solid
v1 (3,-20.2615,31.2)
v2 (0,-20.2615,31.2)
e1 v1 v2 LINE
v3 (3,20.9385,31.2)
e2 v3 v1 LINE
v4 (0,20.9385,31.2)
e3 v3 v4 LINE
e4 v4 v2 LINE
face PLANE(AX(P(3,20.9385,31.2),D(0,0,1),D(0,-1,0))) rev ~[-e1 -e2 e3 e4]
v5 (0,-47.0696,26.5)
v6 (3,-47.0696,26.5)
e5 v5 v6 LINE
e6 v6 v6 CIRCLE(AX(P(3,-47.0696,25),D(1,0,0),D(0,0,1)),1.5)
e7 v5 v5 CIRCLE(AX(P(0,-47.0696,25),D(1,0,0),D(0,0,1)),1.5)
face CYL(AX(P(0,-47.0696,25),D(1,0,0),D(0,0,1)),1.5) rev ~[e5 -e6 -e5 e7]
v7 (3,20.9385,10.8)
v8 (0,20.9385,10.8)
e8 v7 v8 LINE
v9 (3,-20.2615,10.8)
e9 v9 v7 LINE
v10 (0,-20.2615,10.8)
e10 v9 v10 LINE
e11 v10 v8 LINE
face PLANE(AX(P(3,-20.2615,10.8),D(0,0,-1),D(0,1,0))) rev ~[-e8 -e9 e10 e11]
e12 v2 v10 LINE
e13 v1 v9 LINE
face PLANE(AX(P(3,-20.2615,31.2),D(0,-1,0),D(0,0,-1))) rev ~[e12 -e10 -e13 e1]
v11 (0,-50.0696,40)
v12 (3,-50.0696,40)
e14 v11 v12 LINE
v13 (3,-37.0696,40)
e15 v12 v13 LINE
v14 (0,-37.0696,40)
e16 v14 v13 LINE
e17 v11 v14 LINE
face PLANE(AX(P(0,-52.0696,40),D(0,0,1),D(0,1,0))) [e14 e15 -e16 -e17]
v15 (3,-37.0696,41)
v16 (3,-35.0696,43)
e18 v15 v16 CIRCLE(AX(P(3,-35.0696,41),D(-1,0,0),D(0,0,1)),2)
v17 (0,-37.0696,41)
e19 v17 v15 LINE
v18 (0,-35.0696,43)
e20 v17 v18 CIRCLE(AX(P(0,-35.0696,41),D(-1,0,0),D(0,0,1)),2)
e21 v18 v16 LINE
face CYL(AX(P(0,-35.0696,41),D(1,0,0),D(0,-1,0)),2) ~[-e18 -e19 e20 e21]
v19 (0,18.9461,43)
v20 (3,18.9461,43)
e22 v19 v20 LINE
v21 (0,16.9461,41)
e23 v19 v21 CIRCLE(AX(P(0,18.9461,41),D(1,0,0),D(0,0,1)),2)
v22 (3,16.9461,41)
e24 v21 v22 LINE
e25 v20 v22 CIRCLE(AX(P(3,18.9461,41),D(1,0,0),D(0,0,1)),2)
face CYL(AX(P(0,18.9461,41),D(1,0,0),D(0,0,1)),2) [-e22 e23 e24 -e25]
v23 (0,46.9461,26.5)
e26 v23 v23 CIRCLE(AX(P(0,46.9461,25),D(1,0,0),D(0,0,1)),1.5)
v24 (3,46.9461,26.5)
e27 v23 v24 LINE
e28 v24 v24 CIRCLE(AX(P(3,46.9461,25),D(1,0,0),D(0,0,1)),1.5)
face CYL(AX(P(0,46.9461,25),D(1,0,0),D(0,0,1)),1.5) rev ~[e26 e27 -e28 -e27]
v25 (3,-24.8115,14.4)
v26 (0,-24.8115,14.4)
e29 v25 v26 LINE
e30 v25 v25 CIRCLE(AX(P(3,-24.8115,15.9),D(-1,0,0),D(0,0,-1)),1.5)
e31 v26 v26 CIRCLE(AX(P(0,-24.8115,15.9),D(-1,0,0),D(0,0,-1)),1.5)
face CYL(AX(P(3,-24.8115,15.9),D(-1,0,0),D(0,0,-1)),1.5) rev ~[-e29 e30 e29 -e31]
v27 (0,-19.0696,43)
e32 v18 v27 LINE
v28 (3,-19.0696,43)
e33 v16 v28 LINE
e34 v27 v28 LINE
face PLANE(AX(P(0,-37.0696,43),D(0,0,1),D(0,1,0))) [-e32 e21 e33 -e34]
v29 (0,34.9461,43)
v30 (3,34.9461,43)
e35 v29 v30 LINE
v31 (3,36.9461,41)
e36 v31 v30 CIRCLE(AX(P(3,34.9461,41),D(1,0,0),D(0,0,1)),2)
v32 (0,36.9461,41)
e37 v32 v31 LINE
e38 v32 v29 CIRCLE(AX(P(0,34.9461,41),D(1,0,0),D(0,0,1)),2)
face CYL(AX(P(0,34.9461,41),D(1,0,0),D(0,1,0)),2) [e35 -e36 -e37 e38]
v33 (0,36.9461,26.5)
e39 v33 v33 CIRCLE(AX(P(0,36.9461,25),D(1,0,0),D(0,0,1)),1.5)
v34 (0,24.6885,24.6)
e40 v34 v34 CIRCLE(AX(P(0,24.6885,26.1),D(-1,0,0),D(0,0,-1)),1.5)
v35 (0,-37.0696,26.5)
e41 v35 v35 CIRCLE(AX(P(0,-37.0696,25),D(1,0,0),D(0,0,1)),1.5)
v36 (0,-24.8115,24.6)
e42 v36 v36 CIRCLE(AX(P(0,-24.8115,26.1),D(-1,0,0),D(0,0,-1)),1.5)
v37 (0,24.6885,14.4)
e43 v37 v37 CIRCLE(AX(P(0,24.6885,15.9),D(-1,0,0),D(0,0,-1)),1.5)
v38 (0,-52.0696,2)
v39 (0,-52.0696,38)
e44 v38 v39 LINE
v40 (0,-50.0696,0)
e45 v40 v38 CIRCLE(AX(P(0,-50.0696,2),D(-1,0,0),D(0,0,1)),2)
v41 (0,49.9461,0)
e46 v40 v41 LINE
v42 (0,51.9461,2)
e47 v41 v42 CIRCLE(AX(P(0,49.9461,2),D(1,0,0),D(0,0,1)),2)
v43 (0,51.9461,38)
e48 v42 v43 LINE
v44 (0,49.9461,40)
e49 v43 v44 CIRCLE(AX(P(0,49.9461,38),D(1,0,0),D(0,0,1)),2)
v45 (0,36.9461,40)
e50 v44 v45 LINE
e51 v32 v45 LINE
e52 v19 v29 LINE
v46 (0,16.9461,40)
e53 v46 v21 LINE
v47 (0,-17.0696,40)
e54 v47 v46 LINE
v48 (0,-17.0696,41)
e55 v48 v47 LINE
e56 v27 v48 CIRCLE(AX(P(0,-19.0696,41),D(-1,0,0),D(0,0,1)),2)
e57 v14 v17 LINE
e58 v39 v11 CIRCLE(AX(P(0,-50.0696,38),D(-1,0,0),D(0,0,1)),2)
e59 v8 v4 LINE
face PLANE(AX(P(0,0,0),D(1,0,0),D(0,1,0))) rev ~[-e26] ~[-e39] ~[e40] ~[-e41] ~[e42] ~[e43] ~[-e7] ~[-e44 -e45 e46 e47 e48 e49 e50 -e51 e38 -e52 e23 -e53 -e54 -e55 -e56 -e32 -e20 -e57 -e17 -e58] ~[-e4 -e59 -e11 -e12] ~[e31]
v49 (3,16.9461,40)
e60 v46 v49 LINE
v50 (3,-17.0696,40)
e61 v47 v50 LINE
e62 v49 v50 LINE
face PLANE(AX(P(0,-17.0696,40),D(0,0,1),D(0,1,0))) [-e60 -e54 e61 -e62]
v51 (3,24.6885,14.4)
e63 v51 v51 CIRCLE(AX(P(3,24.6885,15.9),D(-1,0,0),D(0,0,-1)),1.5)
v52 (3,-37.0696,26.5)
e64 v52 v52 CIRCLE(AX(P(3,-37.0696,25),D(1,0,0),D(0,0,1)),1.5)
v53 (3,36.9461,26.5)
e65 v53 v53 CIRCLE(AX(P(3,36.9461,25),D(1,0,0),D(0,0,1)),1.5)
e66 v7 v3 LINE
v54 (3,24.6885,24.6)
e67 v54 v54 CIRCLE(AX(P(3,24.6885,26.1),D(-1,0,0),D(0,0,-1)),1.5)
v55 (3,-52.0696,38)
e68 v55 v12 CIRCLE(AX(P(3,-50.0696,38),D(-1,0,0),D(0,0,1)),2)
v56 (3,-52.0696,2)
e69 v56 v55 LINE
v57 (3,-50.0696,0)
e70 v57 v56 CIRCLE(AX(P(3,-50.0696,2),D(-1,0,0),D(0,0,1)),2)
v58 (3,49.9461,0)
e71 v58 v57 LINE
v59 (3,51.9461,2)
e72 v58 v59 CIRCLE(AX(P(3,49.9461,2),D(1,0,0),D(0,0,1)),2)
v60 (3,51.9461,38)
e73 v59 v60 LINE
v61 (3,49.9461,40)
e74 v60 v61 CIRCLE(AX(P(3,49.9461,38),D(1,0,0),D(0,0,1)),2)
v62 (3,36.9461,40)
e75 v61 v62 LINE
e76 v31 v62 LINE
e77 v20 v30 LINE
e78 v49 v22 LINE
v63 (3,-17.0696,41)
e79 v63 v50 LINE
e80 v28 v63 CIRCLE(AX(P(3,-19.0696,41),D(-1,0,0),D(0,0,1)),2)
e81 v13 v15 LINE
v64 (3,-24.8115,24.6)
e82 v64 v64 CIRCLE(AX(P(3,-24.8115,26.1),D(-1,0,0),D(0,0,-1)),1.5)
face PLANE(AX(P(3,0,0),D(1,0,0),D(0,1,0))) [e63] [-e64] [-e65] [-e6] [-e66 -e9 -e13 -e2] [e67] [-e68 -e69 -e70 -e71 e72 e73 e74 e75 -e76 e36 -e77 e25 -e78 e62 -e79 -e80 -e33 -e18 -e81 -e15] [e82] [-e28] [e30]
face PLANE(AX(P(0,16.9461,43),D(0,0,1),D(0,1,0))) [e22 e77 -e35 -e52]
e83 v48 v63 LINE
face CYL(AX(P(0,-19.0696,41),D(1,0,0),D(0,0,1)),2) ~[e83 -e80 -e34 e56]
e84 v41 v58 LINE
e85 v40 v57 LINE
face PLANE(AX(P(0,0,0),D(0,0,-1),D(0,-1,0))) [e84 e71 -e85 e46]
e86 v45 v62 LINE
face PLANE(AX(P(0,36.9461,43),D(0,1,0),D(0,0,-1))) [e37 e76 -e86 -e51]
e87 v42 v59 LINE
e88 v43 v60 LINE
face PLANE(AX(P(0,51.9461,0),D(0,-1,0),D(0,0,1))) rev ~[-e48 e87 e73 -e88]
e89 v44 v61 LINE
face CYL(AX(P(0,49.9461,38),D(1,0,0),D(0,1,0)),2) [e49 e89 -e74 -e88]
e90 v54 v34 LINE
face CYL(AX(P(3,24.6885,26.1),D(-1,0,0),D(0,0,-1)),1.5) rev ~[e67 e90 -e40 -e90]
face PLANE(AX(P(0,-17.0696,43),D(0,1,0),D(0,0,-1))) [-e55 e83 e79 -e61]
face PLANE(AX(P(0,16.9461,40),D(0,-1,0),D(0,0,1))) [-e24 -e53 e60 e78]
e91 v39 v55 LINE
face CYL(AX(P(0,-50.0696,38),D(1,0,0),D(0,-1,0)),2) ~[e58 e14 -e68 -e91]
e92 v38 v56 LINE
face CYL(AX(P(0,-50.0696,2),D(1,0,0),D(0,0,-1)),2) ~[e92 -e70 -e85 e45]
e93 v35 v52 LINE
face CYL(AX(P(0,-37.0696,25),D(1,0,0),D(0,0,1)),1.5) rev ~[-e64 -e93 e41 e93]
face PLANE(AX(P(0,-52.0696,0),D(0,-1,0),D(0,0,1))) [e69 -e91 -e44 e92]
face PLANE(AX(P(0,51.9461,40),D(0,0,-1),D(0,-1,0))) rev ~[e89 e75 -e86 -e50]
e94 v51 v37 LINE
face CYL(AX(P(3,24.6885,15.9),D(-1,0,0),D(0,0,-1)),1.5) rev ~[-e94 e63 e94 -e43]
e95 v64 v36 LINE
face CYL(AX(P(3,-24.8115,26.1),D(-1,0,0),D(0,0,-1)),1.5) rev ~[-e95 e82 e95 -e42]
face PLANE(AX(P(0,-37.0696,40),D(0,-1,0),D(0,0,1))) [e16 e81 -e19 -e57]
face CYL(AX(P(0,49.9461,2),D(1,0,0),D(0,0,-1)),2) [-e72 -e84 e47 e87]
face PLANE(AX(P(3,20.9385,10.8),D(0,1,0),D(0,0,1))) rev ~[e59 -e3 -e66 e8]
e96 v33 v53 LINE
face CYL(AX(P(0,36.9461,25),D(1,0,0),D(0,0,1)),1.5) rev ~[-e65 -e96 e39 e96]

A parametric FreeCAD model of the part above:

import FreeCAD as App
import Part
import Sketcher

V = App.Vector
Q = App.Units.Quantity


def edges_at(feature, points):
    """Names of the edges that pass closest to the given points."""
    edges = feature.Shape.Edges
    near = lambda p: min(range(len(edges)), key=lambda i: edges[i].distToShape(Part.Vertex(*p))[0])
    return sorted({f"Edge{near(p) + 1}" for p in points})


def add_polygon(sketch, points):
    """Adds a closed chain of lines whose ends are joined by coincident constraints."""
    first, n = sketch.GeometryCount, len(points)
    for a, b in zip(points, points[1:] + points[:1]):
        sketch.addGeometry(Part.LineSegment(App.Vector(*a, 0), App.Vector(*b, 0)), False)
    for i in range(n):
        sketch.addConstraint(Sketcher.Constraint("Coincident", first + i, 2, first + (i + 1) % n, 1))

doc = App.newDocument("Part")
body = doc.addObject("PartDesign::Body", "Body")

sketch1 = body.newObject("Sketcher::SketchObject", "Sketch")
sketch1.AttachmentSupport = (doc.getObject("YZ_Plane"), [""])
sketch1.MapMode = "FlatFace"
add_polygon(sketch1, [(-52.1, 0), (51.9, 0), (51.9, 40), (36.9, 40), (36.9, 43), (16.9, 43), (16.9, 40), (-17.1, 40), (-17.1, 43), (-37.1, 43), (-37.1, 40), (-52.1, 40)])
sketch1.addConstraint(Sketcher.Constraint("Horizontal", 0))
sketch1.addConstraint(Sketcher.Constraint("Vertical", 1))
sketch1.addConstraint(Sketcher.Constraint("Horizontal", 2))
sketch1.addConstraint(Sketcher.Constraint("Vertical", 3))
sketch1.addConstraint(Sketcher.Constraint("Horizontal", 4))
sketch1.addConstraint(Sketcher.Constraint("Vertical", 5))
sketch1.addConstraint(Sketcher.Constraint("Horizontal", 6))
sketch1.addConstraint(Sketcher.Constraint("Vertical", 7))
sketch1.addConstraint(Sketcher.Constraint("Horizontal", 8))
sketch1.addConstraint(Sketcher.Constraint("Vertical", 9))
sketch1.addConstraint(Sketcher.Constraint("Horizontal", 10))
sketch1.addConstraint(Sketcher.Constraint("Vertical", 11))
sketch1.addConstraint(Sketcher.Constraint("PointOnObject", 0, 2, -1))
sketch1.addConstraint(Sketcher.Constraint("Horizontal", 2, 2, 5, 2))
sketch1.addConstraint(Sketcher.Constraint("Horizontal", 4, 2, 7, 2))
sketch1.addConstraint(Sketcher.Constraint("Horizontal", 6, 2, 9, 2))
sketch1.addConstraint(Sketcher.Constraint("Equal", 4, 8))
sketch1.addConstraint(Sketcher.Constraint("Equal", 2, 10))
sketch1.addConstraint(Sketcher.Constraint("DistanceX", 2, 2, 2, 1, Q("15 mm")))
sketch1.addConstraint(Sketcher.Constraint("DistanceX", 4, 2, 4, 1, Q("20 mm")))
sketch1.addConstraint(Sketcher.Constraint("DistanceY", 1, 1, 1, 2, Q("40 mm")))
sketch1.addConstraint(Sketcher.Constraint("DistanceY", 3, 1, 3, 2, Q("3 mm")))
sketch1.addConstraint(Sketcher.Constraint("DistanceX", 0, 1, 0, 2, Q("104.0157 mm")))
sketch1.addConstraint(Sketcher.Constraint("DistanceX", -1, 1, 0, 2, Q("51.946 mm")))
pad1 = body.newObject("PartDesign::Pad", "Pad")
pad1.Profile = sketch1
pad1.Length = 3

sketch2 = body.newObject("Sketcher::SketchObject", "Sketch001")
sketch2.AttachmentSupport = (doc.getObject("YZ_Plane"), [""])
sketch2.MapMode = "FlatFace"
sketch2.addGeometry(Part.Circle(V(-47.1, 25, 0), V(0, 0, 1), 1.5), False)
sketch2.addGeometry(Part.Circle(V(-37.1, 25, 0), V(0, 0, 1), 1.5), False)
sketch2.addGeometry(Part.Circle(V(36.9, 25, 0), V(0, 0, 1), 1.5), False)
sketch2.addGeometry(Part.Circle(V(46.9, 25, 0), V(0, 0, 1), 1.5), False)
sketch2.addConstraint(Sketcher.Constraint("Equal", 0, 1))
sketch2.addConstraint(Sketcher.Constraint("Equal", 1, 2))
sketch2.addConstraint(Sketcher.Constraint("Equal", 2, 3))
sketch2.addConstraint(Sketcher.Constraint("Horizontal", 0, 3, 1, 3))
sketch2.addConstraint(Sketcher.Constraint("Horizontal", 1, 3, 2, 3))
sketch2.addConstraint(Sketcher.Constraint("Horizontal", 2, 3, 3, 3))
sketch2.addConstraint(Sketcher.Constraint("Diameter", 0, Q("3 mm")))
sketch2.addConstraint(Sketcher.Constraint("DistanceY", -1, 1, 0, 3, Q("25 mm")))
sketch2.addConstraint(Sketcher.Constraint("DistanceX", 0, 3, 1, 3, Q("10 mm")))
sketch2.addConstraint(Sketcher.Constraint("DistanceX", 2, 3, 3, 3, Q("10 mm")))
sketch2.addConstraint(Sketcher.Constraint("DistanceX", -1, 1, 2, 3, Q("36.946 mm")))
sketch2.addConstraint(Sketcher.Constraint("DistanceX", 0, 3, -1, 1, Q("47.0696 mm")))
doc.recompute()
hole = body.newObject("PartDesign::Hole", "Hole")
hole.Profile = sketch2
hole.ThreadType = "None"
hole.Diameter = 3
hole.DepthType = "ThroughAll"
hole.Reversed = True

sketch3 = body.newObject("Sketcher::SketchObject", "Sketch002")
sketch3.AttachmentSupport = (doc.getObject("YZ_Plane"), [""])
sketch3.MapMode = "FlatFace"
sketch3.AttachmentOffset = App.Placement(V(0, 0, 3), App.Rotation())
sketch3.addGeometry(Part.Circle(V(24.7, 15.9, 0), V(0, 0, 1), 1.5), False)
sketch3.addGeometry(Part.Circle(V(24.7, 26.1, 0), V(0, 0, 1), 1.5), False)
sketch3.addGeometry(Part.Circle(V(-24.8, 26.1, 0), V(0, 0, 1), 1.5), False)
sketch3.addGeometry(Part.Circle(V(-24.8, 15.9, 0), V(0, 0, 1), 1.5), False)
sketch3.addConstraint(Sketcher.Constraint("Equal", 0, 1))
sketch3.addConstraint(Sketcher.Constraint("Equal", 1, 2))
sketch3.addConstraint(Sketcher.Constraint("Equal", 2, 3))
sketch3.addConstraint(Sketcher.Constraint("Horizontal", 1, 3, 2, 3))
sketch3.addConstraint(Sketcher.Constraint("Horizontal", 0, 3, 3, 3))
sketch3.addConstraint(Sketcher.Constraint("Vertical", 0, 3, 1, 3))
sketch3.addConstraint(Sketcher.Constraint("Vertical", 2, 3, 3, 3))
sketch3.addConstraint(Sketcher.Constraint("Diameter", 0, Q("3 mm")))
sketch3.addConstraint(Sketcher.Constraint("DistanceY", -1, 1, 0, 3, Q("15.9 mm")))
sketch3.addConstraint(Sketcher.Constraint("DistanceY", -1, 1, 1, 3, Q("26.1 mm")))
sketch3.addConstraint(Sketcher.Constraint("DistanceX", 2, 3, 1, 3, Q("49.5 mm")))
sketch3.addConstraint(Sketcher.Constraint("DistanceX", -1, 1, 0, 3, Q("24.6885 mm")))
doc.recompute()
hole2 = body.newObject("PartDesign::Hole", "Hole001")
hole2.Profile = sketch3
hole2.ThreadType = "None"
hole2.Diameter = 3
hole2.DepthType = "ThroughAll"

sketch4 = body.newObject("Sketcher::SketchObject", "Sketch003")
sketch4.AttachmentSupport = (doc.getObject("YZ_Plane"), [""])
sketch4.MapMode = "FlatFace"
sketch4.AttachmentOffset = App.Placement(V(0, 0, 3), App.Rotation())
add_polygon(sketch4, [(-20, 11), (21, 11), (21, 31), (-20, 31)])
sketch4.addConstraint(Sketcher.Constraint("Horizontal", 0))
sketch4.addConstraint(Sketcher.Constraint("Vertical", 1))
sketch4.addConstraint(Sketcher.Constraint("Horizontal", 2))
sketch4.addConstraint(Sketcher.Constraint("Vertical", 3))
sketch4.addConstraint(Sketcher.Constraint("DistanceX", 0, 1, 0, 2, Q("41.2 mm")))
sketch4.addConstraint(Sketcher.Constraint("DistanceY", 1, 1, 1, 2, Q("20.4 mm")))
sketch4.addConstraint(Sketcher.Constraint("DistanceY", -1, 1, 0, 2, Q("10.8 mm")))
sketch4.addConstraint(Sketcher.Constraint("DistanceX", -1, 1, 0, 2, Q("20.9385 mm")))
pocket1 = body.newObject("PartDesign::Pocket", "Pocket")
pocket1.Profile = sketch4
pocket1.Type = "ThroughAll"
doc.recompute()

fillet = body.newObject("PartDesign::Fillet", "Fillet")
fillet.Base = (pocket1, edges_at(pocket1, [
    (1.5, 51.946, 0),
    (1.5, -52.07, 0),
    (1.5, -52.07, 40),
    (1.5, -37.07, 43),
    (1.5, -17.07, 43),
    (1.5, 16.946, 43),
    (1.5, 36.946, 43),
    (1.5, 51.946, 40),
]))
fillet.Radius = 2

doc.recompute()
